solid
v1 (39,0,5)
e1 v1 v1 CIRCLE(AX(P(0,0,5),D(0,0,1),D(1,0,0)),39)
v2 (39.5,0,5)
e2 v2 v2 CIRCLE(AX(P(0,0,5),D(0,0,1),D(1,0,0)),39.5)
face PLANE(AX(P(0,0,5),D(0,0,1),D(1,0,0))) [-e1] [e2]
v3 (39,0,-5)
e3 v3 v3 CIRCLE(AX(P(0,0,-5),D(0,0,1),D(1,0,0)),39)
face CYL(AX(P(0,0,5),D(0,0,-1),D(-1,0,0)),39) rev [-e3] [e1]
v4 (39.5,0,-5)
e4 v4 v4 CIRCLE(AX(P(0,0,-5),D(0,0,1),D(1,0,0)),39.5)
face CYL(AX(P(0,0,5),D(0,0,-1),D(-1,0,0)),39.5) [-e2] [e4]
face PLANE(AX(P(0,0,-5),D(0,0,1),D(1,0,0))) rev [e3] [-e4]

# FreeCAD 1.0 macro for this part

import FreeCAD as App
import Part
import Sketcher
from FreeCAD import Vector

doc = App.newDocument("Part")
params = doc.addObject("Spreadsheet::Sheet", "Params")
for row, (alias, value) in enumerate([
    ("sketch1_diameter", "79 mm"),
    ("sketch1_diameter2", "78 mm"),
    ("pad1_length", "10 mm"),
], start=1):
    params.set(f"A{row}", alias)
    params.set(f"B{row}", "=" + value)
    params.setAlias(f"B{row}", alias)

body = doc.addObject("PartDesign::Body", "Body")

sketch1 = body.newObject("Sketcher::SketchObject", "Sketch")
sketch1.AttachmentSupport = (doc.getObject("XY_Plane"), [""])
sketch1.MapMode = "FlatFace"
sketch1.addGeometry(Part.Circle(Vector(0, 0, 0), Vector(0, 0, 1), 40), False)
sketch1.addGeometry(Part.Circle(Vector(0, 0, 0), Vector(0, 0, 1), 39), False)
sketch1.addConstraint(Sketcher.Constraint("Coincident", 0, 3, -1, 1))
sketch1.addConstraint(Sketcher.Constraint("Coincident", 1, 3, -1, 1))
sketch1.addConstraint(Sketcher.Constraint("Diameter", 0, 79.0))
sketch1.addConstraint(Sketcher.Constraint("Diameter", 1, 78.0))
sketch1.setExpression("Constraints[2]", "Params.sketch1_diameter")
sketch1.setExpression("Constraints[3]", "Params.sketch1_diameter2")
pad1 = body.newObject("PartDesign::Pad", "Pad")
pad1.Profile = sketch1
pad1.setExpression("Length", "Params.pad1_length")
pad1.Midplane = True

doc.recompute()
